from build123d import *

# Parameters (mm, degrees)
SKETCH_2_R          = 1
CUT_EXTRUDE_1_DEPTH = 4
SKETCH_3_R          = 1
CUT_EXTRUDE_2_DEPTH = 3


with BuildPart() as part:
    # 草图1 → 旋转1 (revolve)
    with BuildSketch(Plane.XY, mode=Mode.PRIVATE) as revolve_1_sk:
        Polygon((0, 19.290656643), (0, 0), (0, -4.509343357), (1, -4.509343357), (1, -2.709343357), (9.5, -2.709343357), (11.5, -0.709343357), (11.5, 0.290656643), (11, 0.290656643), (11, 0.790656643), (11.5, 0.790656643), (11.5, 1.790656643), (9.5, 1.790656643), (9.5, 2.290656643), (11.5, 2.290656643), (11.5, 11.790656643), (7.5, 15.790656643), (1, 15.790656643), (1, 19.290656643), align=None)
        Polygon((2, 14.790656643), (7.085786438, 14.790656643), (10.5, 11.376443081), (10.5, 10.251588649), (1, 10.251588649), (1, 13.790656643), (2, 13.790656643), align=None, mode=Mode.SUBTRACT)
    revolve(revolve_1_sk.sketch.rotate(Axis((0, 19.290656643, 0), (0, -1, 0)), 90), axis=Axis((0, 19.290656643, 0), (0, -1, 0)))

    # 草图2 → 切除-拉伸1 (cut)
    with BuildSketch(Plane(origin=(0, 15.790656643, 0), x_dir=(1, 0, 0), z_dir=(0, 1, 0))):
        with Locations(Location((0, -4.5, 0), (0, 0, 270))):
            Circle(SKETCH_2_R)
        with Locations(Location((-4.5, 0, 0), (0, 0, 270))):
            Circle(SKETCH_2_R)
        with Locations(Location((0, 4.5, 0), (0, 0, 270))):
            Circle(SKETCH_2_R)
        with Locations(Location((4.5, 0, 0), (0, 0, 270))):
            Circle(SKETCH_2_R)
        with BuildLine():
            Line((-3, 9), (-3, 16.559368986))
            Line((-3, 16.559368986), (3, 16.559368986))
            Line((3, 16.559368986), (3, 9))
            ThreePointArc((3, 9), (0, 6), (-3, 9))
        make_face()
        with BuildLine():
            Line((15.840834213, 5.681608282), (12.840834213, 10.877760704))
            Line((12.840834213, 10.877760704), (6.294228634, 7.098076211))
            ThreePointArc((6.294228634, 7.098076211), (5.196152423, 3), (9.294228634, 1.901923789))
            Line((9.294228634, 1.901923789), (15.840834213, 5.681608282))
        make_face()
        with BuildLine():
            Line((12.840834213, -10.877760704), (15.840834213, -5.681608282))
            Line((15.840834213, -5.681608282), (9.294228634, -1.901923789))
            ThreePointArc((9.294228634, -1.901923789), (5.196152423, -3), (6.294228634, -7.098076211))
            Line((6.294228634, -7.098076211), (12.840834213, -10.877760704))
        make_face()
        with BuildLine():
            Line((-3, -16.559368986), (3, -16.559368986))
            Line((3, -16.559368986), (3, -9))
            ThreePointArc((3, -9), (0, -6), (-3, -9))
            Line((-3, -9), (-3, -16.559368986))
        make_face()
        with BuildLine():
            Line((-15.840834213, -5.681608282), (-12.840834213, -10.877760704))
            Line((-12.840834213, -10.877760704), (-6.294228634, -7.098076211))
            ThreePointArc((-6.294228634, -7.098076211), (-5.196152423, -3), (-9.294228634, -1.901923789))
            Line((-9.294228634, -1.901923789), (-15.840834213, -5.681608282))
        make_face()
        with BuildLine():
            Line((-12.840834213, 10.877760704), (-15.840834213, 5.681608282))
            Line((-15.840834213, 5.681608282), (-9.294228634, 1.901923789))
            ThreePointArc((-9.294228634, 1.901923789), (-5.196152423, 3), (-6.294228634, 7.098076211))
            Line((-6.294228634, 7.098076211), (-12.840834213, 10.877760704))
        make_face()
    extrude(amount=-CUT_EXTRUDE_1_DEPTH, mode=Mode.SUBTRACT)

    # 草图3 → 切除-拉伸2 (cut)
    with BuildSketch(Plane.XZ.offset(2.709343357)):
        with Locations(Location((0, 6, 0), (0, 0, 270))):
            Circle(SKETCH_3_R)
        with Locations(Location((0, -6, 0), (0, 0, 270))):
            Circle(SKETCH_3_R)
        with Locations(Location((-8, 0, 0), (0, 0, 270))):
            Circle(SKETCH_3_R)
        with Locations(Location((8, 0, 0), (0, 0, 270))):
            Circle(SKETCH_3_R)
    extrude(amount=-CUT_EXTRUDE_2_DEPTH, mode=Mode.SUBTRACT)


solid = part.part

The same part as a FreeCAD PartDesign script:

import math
import FreeCAD as App
import Part
import Sketcher
Q = App.Units.Quantity


def add_polygon(sketch, points):
    """Adds a closed chain of lines whose ends are joined by coincident constraints."""
    first, n = sketch.GeometryCount, len(points)
    for a, b in zip(points, points[1:] + points[:1]):
        sketch.addGeometry(Part.LineSegment(App.Vector(*a, 0), App.Vector(*b, 0)), False)
    for i in range(n):
        sketch.addConstraint(Sketcher.Constraint("Coincident", first + i, 2, first + (i + 1) % n, 1))

doc = App.newDocument("Part")
body = doc.addObject("PartDesign::Body", "Body")

# Sketch on XY plane
sketch1 = doc.addObject("Sketcher::SketchObject", "Sketch")
body.addObject(sketch1)
sketch1.AttachmentSupport = (doc.XY_Plane, [""])
sketch1.MapMode = "FlatFace"
add_polygon(sketch1, [(0, 19.3), (0, -4.5), (1, -4.5), (1, -2.7), (9.5, -2.7), (11.5, -0.7), (11.5, 0.3), (11, 0.3), (11, 0.8), (11.5, 0.8), (11.5, 1.8), (9.5, 1.8), (9.5, 2.3), (11.5, 2.3), (11.5, 11.8), (7.5, 15.8), (1, 15.8), (1, 19.3)])  # lines 0-17
add_polygon(sketch1, [(2, 13.8), (2, 14.8), (7.1, 14.8), (10.5, 11.4), (10.5, 10.3), (1, 10.3), (1, 13.8)])  # lines 18-24
sketch1.addConstraint([
    Sketcher.Constraint("Vertical", 0),
    Sketcher.Constraint("Horizontal", 1),
    Sketcher.Constraint("Vertical", 2),
    Sketcher.Constraint("Horizontal", 3),
    Sketcher.Constraint("Vertical", 5),
    Sketcher.Constraint("Horizontal", 6),
    Sketcher.Constraint("Vertical", 7),
    Sketcher.Constraint("Horizontal", 8),
    Sketcher.Constraint("Vertical", 9),
    Sketcher.Constraint("Horizontal", 10),
    Sketcher.Constraint("Vertical", 11),
    Sketcher.Constraint("Horizontal", 12),
    Sketcher.Constraint("Vertical", 13),
    Sketcher.Constraint("Horizontal", 15),
    Sketcher.Constraint("Vertical", 16),
    Sketcher.Constraint("Horizontal", 17),
    Sketcher.Constraint("Vertical", 18),
    Sketcher.Constraint("Horizontal", 19),
    Sketcher.Constraint("Vertical", 21),
    Sketcher.Constraint("Horizontal", 22),
    Sketcher.Constraint("Vertical", 23),
    Sketcher.Constraint("Horizontal", 24),
    Sketcher.Constraint("PointOnObject", 0, 2, -2),
    Sketcher.Constraint("Perpendicular", 4, 14),
    Sketcher.Constraint("Parallel", 14, 20),
    Sketcher.Constraint("Vertical", 5, 2, 8, 2),
    Sketcher.Constraint("Vertical", 3, 2, 10, 2),
    Sketcher.Constraint("Vertical", 9, 2, 12, 2),
    Sketcher.Constraint("Vertical", 2, 2, 15, 2),
    Sketcher.Constraint("Vertical", 16, 2, 22, 2),
    Sketcher.Constraint("Equal", 17, 24),
    Sketcher.Constraint("Equal", 24, 5),
    Sketcher.Constraint("Equal", 8, 7),
    Sketcher.Constraint("Equal", 5, 9),
    Sketcher.Constraint("Equal", 7, 11),
    Sketcher.Constraint("Equal", 22, 13),
    Sketcher.Constraint("Equal", 9, 18),
    Sketcher.Constraint("DistanceX", 1, 1, 1, 2, 1.0),
    Sketcher.Constraint("DistanceX", 10, 2, 10, 1, 2.0),
    Sketcher.Constraint("Angle", 4, Q("45 deg")),
    Sketcher.Constraint("DistanceX", 3, 1, 3, 2, 8.5),
    Sketcher.Constraint("DistanceX", 6, 2, 6, 1, 0.5),
    Sketcher.Constraint("DistanceX", 15, 2, 15, 1, 6.5),
    Sketcher.Constraint("DistanceX", 22, 2, 22, 1, 9.5),
    Sketcher.Constraint("DistanceY", 0, 2, 0, 1, 23.8),
    Sketcher.Constraint("DistanceY", 2, 1, 2, 2, 1.8),
    Sketcher.Constraint("DistanceY", 18, 2, 15, 2, 1.0),
    Sketcher.Constraint("DistanceX", 19, 1, 19, 2, 5.085786),
    Sketcher.Constraint("DistanceY", 21, 2, 21, 1, 1.124854),
    Sketcher.Constraint("DistanceY", -1, 1, 21, 2, 10.251589),
])
revolution = doc.addObject("PartDesign::Revolution", "Revolution")
body.addObject(revolution)
revolution.Profile = sketch1
revolution.ReferenceAxis = (sketch1, ["V_Axis"])
revolution.Angle = 360

# Sketch on XZ plane
sketch2 = doc.addObject("Sketcher::SketchObject", "Sketch001")
body.addObject(sketch2)
sketch2.AttachmentSupport = (doc.XZ_Plane, [""])
sketch2.MapMode = "FlatFace"
sketch2.AttachmentOffset = App.Placement(App.Vector(0, 0, -15.790657), App.Rotation())
sketch2.addGeometry([
    Part.Circle(App.Vector(0, 4.5, 0), App.Vector(0, 0, 1), 1),  # 0
    Part.Circle(App.Vector(-4.5, 0, 0), App.Vector(0, 0, 1), 1),  # 1
    Part.Circle(App.Vector(0, -4.5, 0), App.Vector(0, 0, 1), 1),  # 2
    Part.Circle(App.Vector(4.5, 0, 0), App.Vector(0, 0, 1), 1),  # 3
    Part.LineSegment(App.Vector(-3, -16.6, 0), App.Vector(-3, -9, 0)),  # 4
    Part.ArcOfCircle(Part.Circle(App.Vector(0, -9, 0), App.Vector(0, 0, 1), 3), math.radians(0), math.radians(180)),  # 5
    Part.LineSegment(App.Vector(3, -9, 0), App.Vector(3, -16.6, 0)),  # 6
    Part.LineSegment(App.Vector(3, -16.6, 0), App.Vector(-3, -16.6, 0)),  # 7
    Part.LineSegment(App.Vector(15.8, -5.7, 0), App.Vector(12.8, -10.9, 0)),  # 8
    Part.LineSegment(App.Vector(12.8, -10.9, 0), App.Vector(6.3, -7.1, 0)),  # 9
    Part.ArcOfCircle(Part.Circle(App.Vector(7.8, -4.5, 0), App.Vector(0, 0, 1), 3), math.radians(60), math.radians(240)),  # 10
    Part.LineSegment(App.Vector(9.3, -1.9, 0), App.Vector(15.8, -5.7, 0)),  # 11
    Part.LineSegment(App.Vector(12.8, 10.9, 0), App.Vector(15.8, 5.7, 0)),  # 12
    Part.LineSegment(App.Vector(15.8, 5.7, 0), App.Vector(9.3, 1.9, 0)),  # 13
    Part.ArcOfCircle(Part.Circle(App.Vector(7.8, 4.5, 0), App.Vector(0, 0, 1), 3), math.radians(120), math.radians(300)),  # 14
    Part.LineSegment(App.Vector(6.3, 7.1, 0), App.Vector(12.8, 10.9, 0)),  # 15
    Part.LineSegment(App.Vector(-3, 16.6, 0), App.Vector(3, 16.6, 0)),  # 16
    Part.LineSegment(App.Vector(3, 16.6, 0), App.Vector(3, 9, 0)),  # 17
    Part.ArcOfCircle(Part.Circle(App.Vector(0, 9, 0), App.Vector(0, 0, 1), 3), math.radians(180), math.radians(360)),  # 18
    Part.LineSegment(App.Vector(-3, 9, 0), App.Vector(-3, 16.6, 0)),  # 19
    Part.LineSegment(App.Vector(-15.8, 5.7, 0), App.Vector(-12.8, 10.9, 0)),  # 20
    Part.LineSegment(App.Vector(-12.8, 10.9, 0), App.Vector(-6.3, 7.1, 0)),  # 21
    Part.ArcOfCircle(Part.Circle(App.Vector(-7.8, 4.5, 0), App.Vector(0, 0, 1), 3), math.radians(-120), math.radians(60)),  # 22
    Part.LineSegment(App.Vector(-9.3, 1.9, 0), App.Vector(-15.8, 5.7, 0)),  # 23
    Part.LineSegment(App.Vector(-12.8, -10.9, 0), App.Vector(-15.8, -5.7, 0)),  # 24
    Part.LineSegment(App.Vector(-15.8, -5.7, 0), App.Vector(-9.3, -1.9, 0)),  # 25
    Part.ArcOfCircle(Part.Circle(App.Vector(-7.8, -4.5, 0), App.Vector(0, 0, 1), 3), math.radians(-60), math.radians(120)),  # 26
    Part.LineSegment(App.Vector(-6.3, -7.1, 0), App.Vector(-12.8, -10.9, 0)),  # 27
], False)
sketch2.addConstraint([
    Sketcher.Constraint("Tangent", 4, 2, 5, 2),
    Sketcher.Constraint("Tangent", 5, 1, 6, 1),
    Sketcher.Constraint("Coincident", 6, 2, 7, 1),
    Sketcher.Constraint("Coincident", 7, 2, 4, 1),
    Sketcher.Constraint("Coincident", 8, 2, 9, 1),
    Sketcher.Constraint("Tangent", 9, 2, 10, 2),
    Sketcher.Constraint("Tangent", 10, 1, 11, 1),
    Sketcher.Constraint("Coincident", 11, 2, 8, 1),
    Sketcher.Constraint("Coincident", 12, 2, 13, 1),
    Sketcher.Constraint("Tangent", 13, 2, 14, 2),
    Sketcher.Constraint("Tangent", 14, 1, 15, 1),
    Sketcher.Constraint("Coincident", 15, 2, 12, 1),
    Sketcher.Constraint("Coincident", 16, 2, 17, 1),
    Sketcher.Constraint("Tangent", 17, 2, 18, 2),
    Sketcher.Constraint("Tangent", 18, 1, 19, 1),
    Sketcher.Constraint("Coincident", 19, 2, 16, 1),
    Sketcher.Constraint("Coincident", 20, 2, 21, 1),
    Sketcher.Constraint("Tangent", 21, 2, 22, 2),
    Sketcher.Constraint("Tangent", 22, 1, 23, 1),
    Sketcher.Constraint("Coincident", 23, 2, 20, 1),
    Sketcher.Constraint("Coincident", 24, 2, 25, 1),
    Sketcher.Constraint("Tangent", 25, 2, 26, 2),
    Sketcher.Constraint("Tangent", 26, 1, 27, 1),
    Sketcher.Constraint("Coincident", 27, 2, 24, 1),
    Sketcher.Constraint("Vertical", 4),
    Sketcher.Constraint("Vertical", 6),
    Sketcher.Constraint("Horizontal", 7),
    Sketcher.Constraint("Horizontal", 16),
    Sketcher.Constraint("Vertical", 17),
    Sketcher.Constraint("Vertical", 19),
    Sketcher.Constraint("Equal", 0, 1),
    Sketcher.Constraint("Equal", 1, 2),
    Sketcher.Constraint("Equal", 2, 3),
    Sketcher.Constraint("Equal", 5, 10),
    Sketcher.Constraint("Equal", 10, 14),
    Sketcher.Constraint("Equal", 14, 18),
    Sketcher.Constraint("Equal", 18, 22),
    Sketcher.Constraint("Equal", 22, 26),
    Sketcher.Constraint("Symmetric", 0, 3, 2, 3, -1, 1),
    Sketcher.Constraint("Symmetric", 1, 3, 3, 3, -1, 1),
    Sketcher.Constraint("Symmetric", 5, 3, 18, 3, -1, 1),
    Sketcher.Constraint("Symmetric", 10, 3, 22, 3, -1, 1),
    Sketcher.Constraint("Symmetric", 14, 3, 26, 3, -1, 1),
    Sketcher.Constraint("Symmetric", 8, 2, 20, 2, -1, 1),
    Sketcher.Constraint("Symmetric", 11, 2, 23, 2, -1, 1),
    Sketcher.Constraint("Symmetric", 12, 2, 24, 2, -1, 1),
    Sketcher.Constraint("Symmetric", 15, 2, 27, 2, -1, 1),
    Sketcher.Constraint("Symmetric", 14, 3, 22, 3, -2),
    Sketcher.Constraint("Symmetric", 15, 2, 20, 2, -2),
    Sketcher.Constraint("Symmetric", 12, 2, 23, 2, -2),
    Sketcher.Constraint("Symmetric", 6, 2, 16, 2, -1),
    Sketcher.Constraint("PointOnObject", 0, 3, -2),
    Sketcher.Constraint("PointOnObject", 1, 3, -1),
    Sketcher.Constraint("Perpendicular", 8, 9),
    Sketcher.Constraint("Parallel", 9, 11),
    Sketcher.Constraint("Horizontal", 2, 3, 10, 3),
    Sketcher.Constraint("Diameter", 0, 2.0),
    Sketcher.Constraint("Radius", 5, 3.0),
    Sketcher.Constraint("Angle", 8, Q("-120 deg")),
    Sketcher.Constraint("DistanceY", 5, 3, -1, 1, 9.0),
    Sketcher.Constraint("DistanceY", 2, 3, 0, 3, 9.0),
    Sketcher.Constraint("DistanceX", 1, 3, 3, 3, 9.0),
    Sketcher.Constraint("DistanceY", 4, 1, 4, 2, 7.559369),
    Sketcher.Constraint("Distance", 9, 7.559369),
    Sketcher.Constraint("DistanceX", -1, 1, 10, 3, 7.794229),
])
pocket1 = doc.addObject("PartDesign::Pocket", "Pocket")
body.addObject(pocket1)
pocket1.Profile = sketch2
pocket1.Length = 4
pocket1.Reversed = True

# Sketch on XZ plane
sketch3 = doc.addObject("Sketcher::SketchObject", "Sketch002")
body.addObject(sketch3)
sketch3.AttachmentSupport = (doc.XZ_Plane, [""])
sketch3.MapMode = "FlatFace"
sketch3.AttachmentOffset = App.Placement(App.Vector(0, 0, 2.709343), App.Rotation())
sketch3.addGeometry([
    Part.Circle(App.Vector(0, 6, 0), App.Vector(0, 0, 1), 1),
    Part.Circle(App.Vector(0, -6, 0), App.Vector(0, 0, 1), 1),
    Part.Circle(App.Vector(-8, 0, 0), App.Vector(0, 0, 1), 1),
    Part.Circle(App.Vector(8, 0, 0), App.Vector(0, 0, 1), 1),
], False)
sketch3.addConstraint([
    Sketcher.Constraint("Equal", 0, 1),
    Sketcher.Constraint("Equal", 1, 2),
    Sketcher.Constraint("Equal", 2, 3),
    Sketcher.Constraint("Symmetric", 0, 3, 1, 3, -1, 1),
    Sketcher.Constraint("Symmetric", 2, 3, 3, 3, -1, 1),
    Sketcher.Constraint("PointOnObject", 0, 3, -2),
    Sketcher.Constraint("PointOnObject", 2, 3, -1),
    Sketcher.Constraint("Diameter", 0, 2.0),
    Sketcher.Constraint("DistanceY", -1, 1, 0, 3, 6.0),
    Sketcher.Constraint("DistanceX", 2, 3, -1, 1, 8.0),
])
pocket2 = doc.addObject("PartDesign::Pocket", "Pocket001")
body.addObject(pocket2)
pocket2.Profile = sketch3
pocket2.Length = 3

doc.recompute()
